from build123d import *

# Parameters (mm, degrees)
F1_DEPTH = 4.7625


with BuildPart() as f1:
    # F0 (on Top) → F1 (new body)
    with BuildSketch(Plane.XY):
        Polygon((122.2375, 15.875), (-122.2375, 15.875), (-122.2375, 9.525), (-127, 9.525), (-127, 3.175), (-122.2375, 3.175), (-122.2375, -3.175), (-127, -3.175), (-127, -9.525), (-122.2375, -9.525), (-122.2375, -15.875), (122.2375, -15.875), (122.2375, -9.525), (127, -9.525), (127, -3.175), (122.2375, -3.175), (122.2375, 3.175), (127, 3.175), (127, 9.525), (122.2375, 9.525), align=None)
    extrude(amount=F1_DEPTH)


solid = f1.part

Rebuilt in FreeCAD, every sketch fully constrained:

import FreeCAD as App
import Part
import Sketcher

V = App.Vector
Q = App.Units.Quantity


def add_polygon(sketch, points):
    """Adds a closed chain of lines whose ends are joined by coincident constraints."""
    first, n = sketch.GeometryCount, len(points)
    for a, b in zip(points, points[1:] + points[:1]):
        sketch.addGeometry(Part.LineSegment(App.Vector(*a, 0), App.Vector(*b, 0)), False)
    for i in range(n):
        sketch.addConstraint(Sketcher.Constraint("Coincident", first + i, 2, first + (i + 1) % n, 1))

doc = App.newDocument("Part")
body = doc.addObject("PartDesign::Body", "Body")

sketch1 = body.newObject("Sketcher::SketchObject", "Sketch")
sketch1.AttachmentSupport = (doc.getObject("XY_Plane"), [""])
sketch1.MapMode = "FlatFace"
add_polygon(sketch1, [(122.2, 15.9), (-122.2, 15.9), (-122.2, 9.5), (-127, 9.5), (-127, 3.2), (-122.2, 3.2), (-122.2, -3.2), (-127, -3.2), (-127, -9.5), (-122.2, -9.5), (-122.2, -15.9), (122.2, -15.9), (122.2, -9.5), (127, -9.5), (127, -3.2), (122.2, -3.2), (122.2, 3.2), (127, 3.2), (127, 9.5), (122.2, 9.5)])
sketch1.addConstraint([
    Sketcher.Constraint("Horizontal", 0),
    Sketcher.Constraint("Vertical", 1),
    Sketcher.Constraint("Horizontal", 2),
    Sketcher.Constraint("Vertical", 3),
    Sketcher.Constraint("Horizontal", 4),
    Sketcher.Constraint("Vertical", 5),
    Sketcher.Constraint("Horizontal", 6),
    Sketcher.Constraint("Vertical", 7),
    Sketcher.Constraint("Horizontal", 8),
    Sketcher.Constraint("Vertical", 9),
    Sketcher.Constraint("Horizontal", 10),
    Sketcher.Constraint("Vertical", 11),
    Sketcher.Constraint("Horizontal", 12),
    Sketcher.Constraint("Vertical", 13),
    Sketcher.Constraint("Horizontal", 14),
    Sketcher.Constraint("Vertical", 15),
    Sketcher.Constraint("Horizontal", 16),
    Sketcher.Constraint("Vertical", 17),
    Sketcher.Constraint("Horizontal", 18),
    Sketcher.Constraint("Vertical", 19),
    Sketcher.Constraint("Symmetric", 0, 2, 10, 2, -1, 1),
    Sketcher.Constraint("Symmetric", 2, 2, 12, 2, -1, 1),
    Sketcher.Constraint("Symmetric", 4, 2, 14, 2, -1, 1),
    Sketcher.Constraint("Symmetric", 6, 2, 16, 2, -1, 1),
    Sketcher.Constraint("Symmetric", 8, 2, 18, 2, -1, 1),
    Sketcher.Constraint("Symmetric", 8, 2, 11, 2, -2),
    Sketcher.Constraint("Symmetric", 6, 2, 13, 2, -2),
    Sketcher.Constraint("Vertical", 1, 2, 4, 2),
    Sketcher.Constraint("Equal", 1, 3),
    Sketcher.Constraint("Equal", 3, 5),
    Sketcher.Constraint("DistanceX", 2, 2, -1, 1, Q("5 in")),
    Sketcher.Constraint("DistanceY", 10, 2, 1, 2, Q("1 in")),
    Sketcher.Constraint("DistanceX", 0, 2, 0, 1, Q("9.625 in")),
])
pad1 = body.newObject("PartDesign::Pad", "Pad")
pad1.Profile = sketch1
pad1.Length = Q("0.1875 in")

doc.recompute()
